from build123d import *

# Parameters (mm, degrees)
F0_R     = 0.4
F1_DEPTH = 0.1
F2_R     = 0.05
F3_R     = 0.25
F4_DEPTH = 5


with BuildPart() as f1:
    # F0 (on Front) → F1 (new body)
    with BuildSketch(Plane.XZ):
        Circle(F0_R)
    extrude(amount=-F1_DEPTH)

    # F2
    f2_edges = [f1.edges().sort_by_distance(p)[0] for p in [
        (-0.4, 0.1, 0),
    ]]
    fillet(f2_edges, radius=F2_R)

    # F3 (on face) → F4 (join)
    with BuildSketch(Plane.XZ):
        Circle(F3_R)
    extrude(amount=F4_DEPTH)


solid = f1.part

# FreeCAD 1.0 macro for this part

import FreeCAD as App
import Part
import Sketcher
Q = App.Units.Quantity


def edges_at(feature, points):
    """Names of the edges that pass closest to the given points."""
    edges = feature.Shape.Edges
    near = lambda p: min(range(len(edges)), key=lambda i: edges[i].distToShape(Part.Vertex(*p))[0])
    return sorted({f"Edge{near(p) + 1}" for p in points})

doc = App.newDocument("Part")
body = doc.addObject("PartDesign::Body", "Body")

sketch1 = body.newObject("Sketcher::SketchObject", "Sketch")
sketch1.AttachmentSupport = (doc.getObject("XZ_Plane"), [""])
sketch1.MapMode = "FlatFace"
sketch1.addGeometry(Part.Circle(App.Vector(0, 0, 0), App.Vector(0, 0, 1), 0.4), False)
sketch1.addConstraint([
    Sketcher.Constraint("Coincident", 0, 3, -1, 1),
    Sketcher.Constraint("Diameter", 0, Q("0.8 mm")),
])
pad1 = body.newObject("PartDesign::Pad", "Pad")
pad1.Profile = sketch1
pad1.Length = 0.1
pad1.Reversed = True
doc.recompute()

fillet = body.newObject("PartDesign::Fillet", "Fillet")
fillet.Base = (pad1, edges_at(pad1, [(-0.4, 0.1, 0)]))
fillet.Radius = 0.05

sketch2 = body.newObject("Sketcher::SketchObject", "Sketch001")
sketch2.AttachmentSupport = (doc.getObject("XZ_Plane"), [""])
sketch2.MapMode = "FlatFace"
sketch2.addGeometry(Part.Circle(App.Vector(0, 0, 0), App.Vector(0, 0, 1), 0.25), False)
sketch2.addConstraint([
    Sketcher.Constraint("Coincident", 0, 3, -1, 1),
    Sketcher.Constraint("Diameter", 0, Q("0.5 mm")),
])
pad2 = body.newObject("PartDesign::Pad", "Pad001")
pad2.Profile = sketch2
pad2.Length = 5

doc.recompute()
